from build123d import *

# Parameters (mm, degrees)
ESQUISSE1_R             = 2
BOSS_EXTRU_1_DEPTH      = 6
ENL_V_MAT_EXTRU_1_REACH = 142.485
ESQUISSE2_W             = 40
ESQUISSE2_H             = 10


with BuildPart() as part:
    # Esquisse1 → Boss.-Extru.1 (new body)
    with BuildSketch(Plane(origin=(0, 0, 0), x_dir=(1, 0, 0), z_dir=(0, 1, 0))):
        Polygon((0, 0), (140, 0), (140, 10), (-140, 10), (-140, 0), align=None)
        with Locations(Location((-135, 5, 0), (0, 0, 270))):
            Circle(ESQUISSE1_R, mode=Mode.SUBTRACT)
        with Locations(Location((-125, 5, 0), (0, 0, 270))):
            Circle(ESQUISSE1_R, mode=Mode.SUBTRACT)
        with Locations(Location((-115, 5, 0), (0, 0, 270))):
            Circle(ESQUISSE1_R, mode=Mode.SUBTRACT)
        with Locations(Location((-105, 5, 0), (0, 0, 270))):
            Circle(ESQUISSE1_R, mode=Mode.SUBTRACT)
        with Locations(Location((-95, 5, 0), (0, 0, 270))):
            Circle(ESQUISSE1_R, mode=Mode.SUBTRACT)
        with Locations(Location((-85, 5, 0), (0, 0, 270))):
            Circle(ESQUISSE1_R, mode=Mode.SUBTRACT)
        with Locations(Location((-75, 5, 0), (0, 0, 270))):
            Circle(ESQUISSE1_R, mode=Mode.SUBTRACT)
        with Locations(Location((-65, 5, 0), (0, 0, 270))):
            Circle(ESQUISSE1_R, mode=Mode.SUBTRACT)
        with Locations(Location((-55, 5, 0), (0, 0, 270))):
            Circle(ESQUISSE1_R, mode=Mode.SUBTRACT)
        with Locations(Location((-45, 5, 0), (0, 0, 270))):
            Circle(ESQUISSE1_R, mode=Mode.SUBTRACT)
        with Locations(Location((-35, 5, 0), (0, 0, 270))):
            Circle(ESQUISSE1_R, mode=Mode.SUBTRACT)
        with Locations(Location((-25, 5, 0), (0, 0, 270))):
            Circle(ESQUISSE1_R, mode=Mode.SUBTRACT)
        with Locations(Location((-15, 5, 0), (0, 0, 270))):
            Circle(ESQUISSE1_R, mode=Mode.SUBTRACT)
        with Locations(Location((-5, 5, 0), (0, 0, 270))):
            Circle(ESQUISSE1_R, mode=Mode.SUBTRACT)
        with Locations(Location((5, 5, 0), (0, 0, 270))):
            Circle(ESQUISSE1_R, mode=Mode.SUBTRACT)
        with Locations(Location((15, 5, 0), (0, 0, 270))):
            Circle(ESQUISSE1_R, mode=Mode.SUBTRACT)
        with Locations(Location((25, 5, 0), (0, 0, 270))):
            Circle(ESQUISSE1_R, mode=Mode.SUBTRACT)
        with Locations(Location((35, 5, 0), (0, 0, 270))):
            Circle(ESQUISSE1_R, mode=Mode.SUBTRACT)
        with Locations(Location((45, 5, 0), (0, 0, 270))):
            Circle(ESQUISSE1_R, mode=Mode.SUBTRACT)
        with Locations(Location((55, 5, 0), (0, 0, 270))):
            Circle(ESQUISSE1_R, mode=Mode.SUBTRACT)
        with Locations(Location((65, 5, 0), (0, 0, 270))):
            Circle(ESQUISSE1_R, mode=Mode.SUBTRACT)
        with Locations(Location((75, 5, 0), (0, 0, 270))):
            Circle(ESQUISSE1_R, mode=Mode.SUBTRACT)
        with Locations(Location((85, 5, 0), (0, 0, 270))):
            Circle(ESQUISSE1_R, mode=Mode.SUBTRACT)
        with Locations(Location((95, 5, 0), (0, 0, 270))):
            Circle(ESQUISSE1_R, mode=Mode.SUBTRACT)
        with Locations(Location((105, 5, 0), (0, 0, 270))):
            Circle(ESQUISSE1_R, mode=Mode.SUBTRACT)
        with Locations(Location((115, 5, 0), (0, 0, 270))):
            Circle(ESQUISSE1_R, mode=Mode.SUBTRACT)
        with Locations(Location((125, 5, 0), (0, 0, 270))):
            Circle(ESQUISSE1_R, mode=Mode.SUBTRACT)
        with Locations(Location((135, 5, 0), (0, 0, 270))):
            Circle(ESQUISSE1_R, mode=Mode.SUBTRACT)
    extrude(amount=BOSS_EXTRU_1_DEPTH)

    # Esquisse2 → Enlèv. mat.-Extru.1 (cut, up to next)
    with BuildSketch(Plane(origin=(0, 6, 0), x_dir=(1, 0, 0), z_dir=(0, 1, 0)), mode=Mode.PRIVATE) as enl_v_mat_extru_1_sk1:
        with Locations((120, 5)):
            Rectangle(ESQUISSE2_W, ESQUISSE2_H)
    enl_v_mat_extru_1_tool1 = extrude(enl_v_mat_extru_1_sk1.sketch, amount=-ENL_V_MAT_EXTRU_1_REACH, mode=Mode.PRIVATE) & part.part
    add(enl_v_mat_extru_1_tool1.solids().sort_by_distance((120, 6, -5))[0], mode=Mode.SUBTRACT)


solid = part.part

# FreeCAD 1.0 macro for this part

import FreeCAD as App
import Part
import Sketcher
Q = App.Units.Quantity

doc = App.newDocument("Part")
params = doc.addObject("Spreadsheet::Sheet", "Params")
for row, (alias, value) in enumerate([
    ("sketch1_diameter", "4 mm"),
    ("sketch1_width", "280 mm"),
    ("sketch1_height", "10 mm"),
    ("pad1_length", "6 mm"),
    ("sketch2_width", "40 mm"),
    ("sketch2_height", "10 mm"),
], start=1):
    params.set(f"A{row}", alias)
    params.set(f"B{row}", "=" + value)
    params.setAlias(f"B{row}", alias)

body = doc.addObject("PartDesign::Body", "Body")

# Sketch on XZ plane
sketch1 = doc.addObject("Sketcher::SketchObject", "Sketch")
body.addObject(sketch1)
sketch1.AttachmentSupport = (doc.XZ_Plane, [""])
sketch1.MapMode = "FlatFace"
sketch1.addGeometry([
    Part.LineSegment(App.Vector(140, 0, 0), App.Vector(140, -10, 0)),  # 0
    Part.LineSegment(App.Vector(140, -10, 0), App.Vector(-140, -10, 0)),  # 1
    Part.LineSegment(App.Vector(-140, -10, 0), App.Vector(-140, 0, 0)),  # 2
    Part.LineSegment(App.Vector(-140, 0, 0), App.Vector(140, 0, 0)),  # 3
    Part.Circle(App.Vector(-135, -5, 0), App.Vector(0, 0, 1), 2),  # 4
    Part.Circle(App.Vector(-125, -5, 0), App.Vector(0, 0, 1), 2),  # 5
    Part.Circle(App.Vector(-115, -5, 0), App.Vector(0, 0, 1), 2),  # 6
    Part.Circle(App.Vector(-105, -5, 0), App.Vector(0, 0, 1), 2),  # 7
    Part.Circle(App.Vector(-95, -5, 0), App.Vector(0, 0, 1), 2),  # 8
    Part.Circle(App.Vector(-85, -5, 0), App.Vector(0, 0, 1), 2),  # 9
    Part.Circle(App.Vector(-75, -5, 0), App.Vector(0, 0, 1), 2),  # 10
    Part.Circle(App.Vector(-65, -5, 0), App.Vector(0, 0, 1), 2),  # 11
    Part.Circle(App.Vector(-55, -5, 0), App.Vector(0, 0, 1), 2),  # 12
    Part.Circle(App.Vector(-45, -5, 0), App.Vector(0, 0, 1), 2),  # 13
    Part.Circle(App.Vector(-35, -5, 0), App.Vector(0, 0, 1), 2),  # 14
    Part.Circle(App.Vector(-25, -5, 0), App.Vector(0, 0, 1), 2),  # 15
    Part.Circle(App.Vector(-15, -5, 0), App.Vector(0, 0, 1), 2),  # 16
    Part.Circle(App.Vector(-5, -5, 0), App.Vector(0, 0, 1), 2),  # 17
    Part.Circle(App.Vector(5, -5, 0), App.Vector(0, 0, 1), 2),  # 18
    Part.Circle(App.Vector(15, -5, 0), App.Vector(0, 0, 1), 2),  # 19
    Part.Circle(App.Vector(25, -5, 0), App.Vector(0, 0, 1), 2),  # 20
    Part.Circle(App.Vector(35, -5, 0), App.Vector(0, 0, 1), 2),  # 21
    Part.Circle(App.Vector(45, -5, 0), App.Vector(0, 0, 1), 2),  # 22
    Part.Circle(App.Vector(55, -5, 0), App.Vector(0, 0, 1), 2),  # 23
    Part.Circle(App.Vector(65, -5, 0), App.Vector(0, 0, 1), 2),  # 24
    Part.Circle(App.Vector(75, -5, 0), App.Vector(0, 0, 1), 2),  # 25
    Part.Circle(App.Vector(85, -5, 0), App.Vector(0, 0, 1), 2),  # 26
    Part.Circle(App.Vector(95, -5, 0), App.Vector(0, 0, 1), 2),  # 27
    Part.Circle(App.Vector(105, -5, 0), App.Vector(0, 0, 1), 2),  # 28
    Part.Circle(App.Vector(115, -5, 0), App.Vector(0, 0, 1), 2),  # 29
    Part.Circle(App.Vector(125, -5, 0), App.Vector(0, 0, 1), 2),  # 30
    Part.Circle(App.Vector(135, -5, 0), App.Vector(0, 0, 1), 2),  # 31
], False)
sketch1.addConstraint([
    Sketcher.Constraint("Coincident", 0, 2, 1, 1),
    Sketcher.Constraint("Coincident", 1, 2, 2, 1),
    Sketcher.Constraint("Coincident", 2, 2, 3, 1),
    Sketcher.Constraint("Coincident", 3, 2, 0, 1),
    Sketcher.Constraint("Vertical", 0),
    Sketcher.Constraint("Horizontal", 1),
    Sketcher.Constraint("Vertical", 2),
    Sketcher.Constraint("Horizontal", 3),
    Sketcher.Constraint("Equal", 4, 5),
    Sketcher.Constraint("Equal", 5, 6),
    Sketcher.Constraint("Equal", 6, 7),
    Sketcher.Constraint("Equal", 7, 8),
    Sketcher.Constraint("Equal", 8, 9),
    Sketcher.Constraint("Equal", 9, 10),
    Sketcher.Constraint("Equal", 10, 11),
    Sketcher.Constraint("Equal", 11, 12),
    Sketcher.Constraint("Equal", 12, 13),
    Sketcher.Constraint("Equal", 13, 14),
    Sketcher.Constraint("Equal", 14, 15),
    Sketcher.Constraint("Equal", 15, 16),
    Sketcher.Constraint("Equal", 16, 17),
    Sketcher.Constraint("Equal", 17, 18),
    Sketcher.Constraint("Equal", 18, 19),
    Sketcher.Constraint("Equal", 19, 20),
    Sketcher.Constraint("Equal", 20, 21),
    Sketcher.Constraint("Equal", 21, 22),
    Sketcher.Constraint("Equal", 22, 23),
    Sketcher.Constraint("Equal", 23, 24),
    Sketcher.Constraint("Equal", 24, 25),
    Sketcher.Constraint("Equal", 25, 26),
    Sketcher.Constraint("Equal", 26, 27),
    Sketcher.Constraint("Equal", 27, 28),
    Sketcher.Constraint("Equal", 28, 29),
    Sketcher.Constraint("Equal", 29, 30),
    Sketcher.Constraint("Equal", 30, 31),
    Sketcher.Constraint("Symmetric", 2, 2, 3, 2, -1, 1),
    Sketcher.Constraint("Symmetric", 17, 3, 18, 3, -2),
    Sketcher.Constraint("Symmetric", 16, 3, 19, 3, -2),
    Sketcher.Constraint("Symmetric", 15, 3, 20, 3, -2),
    Sketcher.Constraint("Symmetric", 14, 3, 21, 3, -2),
    Sketcher.Constraint("Symmetric", 13, 3, 22, 3, -2),
    Sketcher.Constraint("Symmetric", 12, 3, 23, 3, -2),
    Sketcher.Constraint("Symmetric", 11, 3, 24, 3, -2),
    Sketcher.Constraint("Symmetric", 10, 3, 25, 3, -2),
    Sketcher.Constraint("Symmetric", 9, 3, 26, 3, -2),
    Sketcher.Constraint("Symmetric", 8, 3, 27, 3, -2),
    Sketcher.Constraint("Symmetric", 7, 3, 28, 3, -2),
    Sketcher.Constraint("Symmetric", 6, 3, 29, 3, -2),
    Sketcher.Constraint("Symmetric", 5, 3, 30, 3, -2),
    Sketcher.Constraint("Symmetric", 4, 3, 31, 3, -2),
    Sketcher.Constraint("Horizontal", 4, 3, 5, 3),
    Sketcher.Constraint("Horizontal", 5, 3, 6, 3),
    Sketcher.Constraint("Horizontal", 6, 3, 7, 3),
    Sketcher.Constraint("Horizontal", 7, 3, 8, 3),
    Sketcher.Constraint("Horizontal", 8, 3, 9, 3),
    Sketcher.Constraint("Horizontal", 9, 3, 10, 3),
    Sketcher.Constraint("Horizontal", 10, 3, 11, 3),
    Sketcher.Constraint("Horizontal", 11, 3, 12, 3),
    Sketcher.Constraint("Horizontal", 12, 3, 13, 3),
    Sketcher.Constraint("Horizontal", 13, 3, 14, 3),
    Sketcher.Constraint("Horizontal", 14, 3, 15, 3),
    Sketcher.Constraint("Horizontal", 15, 3, 16, 3),
    Sketcher.Constraint("Horizontal", 16, 3, 17, 3),
    Sketcher.Constraint("Diameter", 4, Q("4 mm")),
    Sketcher.Constraint("DistanceX", 1, 2, 1, 1, Q("280 mm")),
    Sketcher.Constraint("DistanceY", 0, 2, 0, 1, Q("10 mm")),
    Sketcher.Constraint("DistanceX", 4, 3, -1, 1, Q("135 mm")),
    Sketcher.Constraint("DistanceY", 4, 3, -1, 1, Q("5 mm")),
    Sketcher.Constraint("DistanceX", 5, 3, -1, 1, Q("125 mm")),
    Sketcher.Constraint("DistanceX", 6, 3, -1, 1, Q("115 mm")),
    Sketcher.Constraint("DistanceX", 7, 3, -1, 1, Q("105 mm")),
    Sketcher.Constraint("DistanceX", 8, 3, -1, 1, Q("95 mm")),
    Sketcher.Constraint("DistanceX", 9, 3, -1, 1, Q("85 mm")),
    Sketcher.Constraint("DistanceX", 10, 3, -1, 1, Q("75 mm")),
    Sketcher.Constraint("DistanceX", 11, 3, -1, 1, Q("65 mm")),
    Sketcher.Constraint("DistanceX", 12, 3, -1, 1, Q("55 mm")),
    Sketcher.Constraint("DistanceX", 13, 3, -1, 1, Q("45 mm")),
    Sketcher.Constraint("DistanceX", 14, 3, -1, 1, Q("35 mm")),
    Sketcher.Constraint("DistanceX", 15, 3, -1, 1, Q("25 mm")),
    Sketcher.Constraint("DistanceX", 16, 3, -1, 1, Q("15 mm")),
    Sketcher.Constraint("DistanceX", 17, 3, -1, 1, Q("5 mm")),
])
sketch1.setExpression("Constraints[63]", "Params.sketch1_diameter")
sketch1.setExpression("Constraints[64]", "Params.sketch1_width")
sketch1.setExpression("Constraints[65]", "Params.sketch1_height")
pad1 = doc.addObject("PartDesign::Pad", "Pad")
body.addObject(pad1)
pad1.Profile = sketch1
pad1.setExpression("Length", "Params.pad1_length")
pad1.Reversed = True

# Sketch on XZ plane
sketch2 = doc.addObject("Sketcher::SketchObject", "Sketch001")
body.addObject(sketch2)
sketch2.AttachmentSupport = (doc.XZ_Plane, [""])
sketch2.MapMode = "FlatFace"
sketch2.AttachmentOffset = App.Placement(App.Vector(0, 0, -6), App.Rotation())
sketch2.addGeometry([
    Part.LineSegment(App.Vector(100, -10, 0), App.Vector(100, 0, 0)),
    Part.LineSegment(App.Vector(100, 0, 0), App.Vector(140, 0, 0)),
    Part.LineSegment(App.Vector(140, 0, 0), App.Vector(140, -10, 0)),
    Part.LineSegment(App.Vector(140, -10, 0), App.Vector(100, -10, 0)),
], False)
sketch2.addConstraint([
    Sketcher.Constraint("Coincident", 0, 2, 1, 1),
    Sketcher.Constraint("Coincident", 1, 2, 2, 1),
    Sketcher.Constraint("Coincident", 2, 2, 3, 1),
    Sketcher.Constraint("Coincident", 3, 2, 0, 1),
    Sketcher.Constraint("Vertical", 0),
    Sketcher.Constraint("Horizontal", 1),
    Sketcher.Constraint("Vertical", 2),
    Sketcher.Constraint("Horizontal", 3),
    Sketcher.Constraint("PointOnObject", 0, 2, -1),
    Sketcher.Constraint("DistanceX", 1, 1, 1, 2, Q("40 mm")),
    Sketcher.Constraint("DistanceY", 0, 1, 0, 2, Q("10 mm")),
    Sketcher.Constraint("DistanceX", -1, 1, 0, 2, Q("100 mm")),
])
sketch2.setExpression("Constraints[9]", "Params.sketch2_width")
sketch2.setExpression("Constraints[10]", "Params.sketch2_height")
pocket1 = doc.addObject("PartDesign::Pocket", "Pocket")
body.addObject(pocket1)
pocket1.Profile = sketch2
pocket1.Type = "UpToFirst"
pocket1.Reversed = True

doc.recompute()
